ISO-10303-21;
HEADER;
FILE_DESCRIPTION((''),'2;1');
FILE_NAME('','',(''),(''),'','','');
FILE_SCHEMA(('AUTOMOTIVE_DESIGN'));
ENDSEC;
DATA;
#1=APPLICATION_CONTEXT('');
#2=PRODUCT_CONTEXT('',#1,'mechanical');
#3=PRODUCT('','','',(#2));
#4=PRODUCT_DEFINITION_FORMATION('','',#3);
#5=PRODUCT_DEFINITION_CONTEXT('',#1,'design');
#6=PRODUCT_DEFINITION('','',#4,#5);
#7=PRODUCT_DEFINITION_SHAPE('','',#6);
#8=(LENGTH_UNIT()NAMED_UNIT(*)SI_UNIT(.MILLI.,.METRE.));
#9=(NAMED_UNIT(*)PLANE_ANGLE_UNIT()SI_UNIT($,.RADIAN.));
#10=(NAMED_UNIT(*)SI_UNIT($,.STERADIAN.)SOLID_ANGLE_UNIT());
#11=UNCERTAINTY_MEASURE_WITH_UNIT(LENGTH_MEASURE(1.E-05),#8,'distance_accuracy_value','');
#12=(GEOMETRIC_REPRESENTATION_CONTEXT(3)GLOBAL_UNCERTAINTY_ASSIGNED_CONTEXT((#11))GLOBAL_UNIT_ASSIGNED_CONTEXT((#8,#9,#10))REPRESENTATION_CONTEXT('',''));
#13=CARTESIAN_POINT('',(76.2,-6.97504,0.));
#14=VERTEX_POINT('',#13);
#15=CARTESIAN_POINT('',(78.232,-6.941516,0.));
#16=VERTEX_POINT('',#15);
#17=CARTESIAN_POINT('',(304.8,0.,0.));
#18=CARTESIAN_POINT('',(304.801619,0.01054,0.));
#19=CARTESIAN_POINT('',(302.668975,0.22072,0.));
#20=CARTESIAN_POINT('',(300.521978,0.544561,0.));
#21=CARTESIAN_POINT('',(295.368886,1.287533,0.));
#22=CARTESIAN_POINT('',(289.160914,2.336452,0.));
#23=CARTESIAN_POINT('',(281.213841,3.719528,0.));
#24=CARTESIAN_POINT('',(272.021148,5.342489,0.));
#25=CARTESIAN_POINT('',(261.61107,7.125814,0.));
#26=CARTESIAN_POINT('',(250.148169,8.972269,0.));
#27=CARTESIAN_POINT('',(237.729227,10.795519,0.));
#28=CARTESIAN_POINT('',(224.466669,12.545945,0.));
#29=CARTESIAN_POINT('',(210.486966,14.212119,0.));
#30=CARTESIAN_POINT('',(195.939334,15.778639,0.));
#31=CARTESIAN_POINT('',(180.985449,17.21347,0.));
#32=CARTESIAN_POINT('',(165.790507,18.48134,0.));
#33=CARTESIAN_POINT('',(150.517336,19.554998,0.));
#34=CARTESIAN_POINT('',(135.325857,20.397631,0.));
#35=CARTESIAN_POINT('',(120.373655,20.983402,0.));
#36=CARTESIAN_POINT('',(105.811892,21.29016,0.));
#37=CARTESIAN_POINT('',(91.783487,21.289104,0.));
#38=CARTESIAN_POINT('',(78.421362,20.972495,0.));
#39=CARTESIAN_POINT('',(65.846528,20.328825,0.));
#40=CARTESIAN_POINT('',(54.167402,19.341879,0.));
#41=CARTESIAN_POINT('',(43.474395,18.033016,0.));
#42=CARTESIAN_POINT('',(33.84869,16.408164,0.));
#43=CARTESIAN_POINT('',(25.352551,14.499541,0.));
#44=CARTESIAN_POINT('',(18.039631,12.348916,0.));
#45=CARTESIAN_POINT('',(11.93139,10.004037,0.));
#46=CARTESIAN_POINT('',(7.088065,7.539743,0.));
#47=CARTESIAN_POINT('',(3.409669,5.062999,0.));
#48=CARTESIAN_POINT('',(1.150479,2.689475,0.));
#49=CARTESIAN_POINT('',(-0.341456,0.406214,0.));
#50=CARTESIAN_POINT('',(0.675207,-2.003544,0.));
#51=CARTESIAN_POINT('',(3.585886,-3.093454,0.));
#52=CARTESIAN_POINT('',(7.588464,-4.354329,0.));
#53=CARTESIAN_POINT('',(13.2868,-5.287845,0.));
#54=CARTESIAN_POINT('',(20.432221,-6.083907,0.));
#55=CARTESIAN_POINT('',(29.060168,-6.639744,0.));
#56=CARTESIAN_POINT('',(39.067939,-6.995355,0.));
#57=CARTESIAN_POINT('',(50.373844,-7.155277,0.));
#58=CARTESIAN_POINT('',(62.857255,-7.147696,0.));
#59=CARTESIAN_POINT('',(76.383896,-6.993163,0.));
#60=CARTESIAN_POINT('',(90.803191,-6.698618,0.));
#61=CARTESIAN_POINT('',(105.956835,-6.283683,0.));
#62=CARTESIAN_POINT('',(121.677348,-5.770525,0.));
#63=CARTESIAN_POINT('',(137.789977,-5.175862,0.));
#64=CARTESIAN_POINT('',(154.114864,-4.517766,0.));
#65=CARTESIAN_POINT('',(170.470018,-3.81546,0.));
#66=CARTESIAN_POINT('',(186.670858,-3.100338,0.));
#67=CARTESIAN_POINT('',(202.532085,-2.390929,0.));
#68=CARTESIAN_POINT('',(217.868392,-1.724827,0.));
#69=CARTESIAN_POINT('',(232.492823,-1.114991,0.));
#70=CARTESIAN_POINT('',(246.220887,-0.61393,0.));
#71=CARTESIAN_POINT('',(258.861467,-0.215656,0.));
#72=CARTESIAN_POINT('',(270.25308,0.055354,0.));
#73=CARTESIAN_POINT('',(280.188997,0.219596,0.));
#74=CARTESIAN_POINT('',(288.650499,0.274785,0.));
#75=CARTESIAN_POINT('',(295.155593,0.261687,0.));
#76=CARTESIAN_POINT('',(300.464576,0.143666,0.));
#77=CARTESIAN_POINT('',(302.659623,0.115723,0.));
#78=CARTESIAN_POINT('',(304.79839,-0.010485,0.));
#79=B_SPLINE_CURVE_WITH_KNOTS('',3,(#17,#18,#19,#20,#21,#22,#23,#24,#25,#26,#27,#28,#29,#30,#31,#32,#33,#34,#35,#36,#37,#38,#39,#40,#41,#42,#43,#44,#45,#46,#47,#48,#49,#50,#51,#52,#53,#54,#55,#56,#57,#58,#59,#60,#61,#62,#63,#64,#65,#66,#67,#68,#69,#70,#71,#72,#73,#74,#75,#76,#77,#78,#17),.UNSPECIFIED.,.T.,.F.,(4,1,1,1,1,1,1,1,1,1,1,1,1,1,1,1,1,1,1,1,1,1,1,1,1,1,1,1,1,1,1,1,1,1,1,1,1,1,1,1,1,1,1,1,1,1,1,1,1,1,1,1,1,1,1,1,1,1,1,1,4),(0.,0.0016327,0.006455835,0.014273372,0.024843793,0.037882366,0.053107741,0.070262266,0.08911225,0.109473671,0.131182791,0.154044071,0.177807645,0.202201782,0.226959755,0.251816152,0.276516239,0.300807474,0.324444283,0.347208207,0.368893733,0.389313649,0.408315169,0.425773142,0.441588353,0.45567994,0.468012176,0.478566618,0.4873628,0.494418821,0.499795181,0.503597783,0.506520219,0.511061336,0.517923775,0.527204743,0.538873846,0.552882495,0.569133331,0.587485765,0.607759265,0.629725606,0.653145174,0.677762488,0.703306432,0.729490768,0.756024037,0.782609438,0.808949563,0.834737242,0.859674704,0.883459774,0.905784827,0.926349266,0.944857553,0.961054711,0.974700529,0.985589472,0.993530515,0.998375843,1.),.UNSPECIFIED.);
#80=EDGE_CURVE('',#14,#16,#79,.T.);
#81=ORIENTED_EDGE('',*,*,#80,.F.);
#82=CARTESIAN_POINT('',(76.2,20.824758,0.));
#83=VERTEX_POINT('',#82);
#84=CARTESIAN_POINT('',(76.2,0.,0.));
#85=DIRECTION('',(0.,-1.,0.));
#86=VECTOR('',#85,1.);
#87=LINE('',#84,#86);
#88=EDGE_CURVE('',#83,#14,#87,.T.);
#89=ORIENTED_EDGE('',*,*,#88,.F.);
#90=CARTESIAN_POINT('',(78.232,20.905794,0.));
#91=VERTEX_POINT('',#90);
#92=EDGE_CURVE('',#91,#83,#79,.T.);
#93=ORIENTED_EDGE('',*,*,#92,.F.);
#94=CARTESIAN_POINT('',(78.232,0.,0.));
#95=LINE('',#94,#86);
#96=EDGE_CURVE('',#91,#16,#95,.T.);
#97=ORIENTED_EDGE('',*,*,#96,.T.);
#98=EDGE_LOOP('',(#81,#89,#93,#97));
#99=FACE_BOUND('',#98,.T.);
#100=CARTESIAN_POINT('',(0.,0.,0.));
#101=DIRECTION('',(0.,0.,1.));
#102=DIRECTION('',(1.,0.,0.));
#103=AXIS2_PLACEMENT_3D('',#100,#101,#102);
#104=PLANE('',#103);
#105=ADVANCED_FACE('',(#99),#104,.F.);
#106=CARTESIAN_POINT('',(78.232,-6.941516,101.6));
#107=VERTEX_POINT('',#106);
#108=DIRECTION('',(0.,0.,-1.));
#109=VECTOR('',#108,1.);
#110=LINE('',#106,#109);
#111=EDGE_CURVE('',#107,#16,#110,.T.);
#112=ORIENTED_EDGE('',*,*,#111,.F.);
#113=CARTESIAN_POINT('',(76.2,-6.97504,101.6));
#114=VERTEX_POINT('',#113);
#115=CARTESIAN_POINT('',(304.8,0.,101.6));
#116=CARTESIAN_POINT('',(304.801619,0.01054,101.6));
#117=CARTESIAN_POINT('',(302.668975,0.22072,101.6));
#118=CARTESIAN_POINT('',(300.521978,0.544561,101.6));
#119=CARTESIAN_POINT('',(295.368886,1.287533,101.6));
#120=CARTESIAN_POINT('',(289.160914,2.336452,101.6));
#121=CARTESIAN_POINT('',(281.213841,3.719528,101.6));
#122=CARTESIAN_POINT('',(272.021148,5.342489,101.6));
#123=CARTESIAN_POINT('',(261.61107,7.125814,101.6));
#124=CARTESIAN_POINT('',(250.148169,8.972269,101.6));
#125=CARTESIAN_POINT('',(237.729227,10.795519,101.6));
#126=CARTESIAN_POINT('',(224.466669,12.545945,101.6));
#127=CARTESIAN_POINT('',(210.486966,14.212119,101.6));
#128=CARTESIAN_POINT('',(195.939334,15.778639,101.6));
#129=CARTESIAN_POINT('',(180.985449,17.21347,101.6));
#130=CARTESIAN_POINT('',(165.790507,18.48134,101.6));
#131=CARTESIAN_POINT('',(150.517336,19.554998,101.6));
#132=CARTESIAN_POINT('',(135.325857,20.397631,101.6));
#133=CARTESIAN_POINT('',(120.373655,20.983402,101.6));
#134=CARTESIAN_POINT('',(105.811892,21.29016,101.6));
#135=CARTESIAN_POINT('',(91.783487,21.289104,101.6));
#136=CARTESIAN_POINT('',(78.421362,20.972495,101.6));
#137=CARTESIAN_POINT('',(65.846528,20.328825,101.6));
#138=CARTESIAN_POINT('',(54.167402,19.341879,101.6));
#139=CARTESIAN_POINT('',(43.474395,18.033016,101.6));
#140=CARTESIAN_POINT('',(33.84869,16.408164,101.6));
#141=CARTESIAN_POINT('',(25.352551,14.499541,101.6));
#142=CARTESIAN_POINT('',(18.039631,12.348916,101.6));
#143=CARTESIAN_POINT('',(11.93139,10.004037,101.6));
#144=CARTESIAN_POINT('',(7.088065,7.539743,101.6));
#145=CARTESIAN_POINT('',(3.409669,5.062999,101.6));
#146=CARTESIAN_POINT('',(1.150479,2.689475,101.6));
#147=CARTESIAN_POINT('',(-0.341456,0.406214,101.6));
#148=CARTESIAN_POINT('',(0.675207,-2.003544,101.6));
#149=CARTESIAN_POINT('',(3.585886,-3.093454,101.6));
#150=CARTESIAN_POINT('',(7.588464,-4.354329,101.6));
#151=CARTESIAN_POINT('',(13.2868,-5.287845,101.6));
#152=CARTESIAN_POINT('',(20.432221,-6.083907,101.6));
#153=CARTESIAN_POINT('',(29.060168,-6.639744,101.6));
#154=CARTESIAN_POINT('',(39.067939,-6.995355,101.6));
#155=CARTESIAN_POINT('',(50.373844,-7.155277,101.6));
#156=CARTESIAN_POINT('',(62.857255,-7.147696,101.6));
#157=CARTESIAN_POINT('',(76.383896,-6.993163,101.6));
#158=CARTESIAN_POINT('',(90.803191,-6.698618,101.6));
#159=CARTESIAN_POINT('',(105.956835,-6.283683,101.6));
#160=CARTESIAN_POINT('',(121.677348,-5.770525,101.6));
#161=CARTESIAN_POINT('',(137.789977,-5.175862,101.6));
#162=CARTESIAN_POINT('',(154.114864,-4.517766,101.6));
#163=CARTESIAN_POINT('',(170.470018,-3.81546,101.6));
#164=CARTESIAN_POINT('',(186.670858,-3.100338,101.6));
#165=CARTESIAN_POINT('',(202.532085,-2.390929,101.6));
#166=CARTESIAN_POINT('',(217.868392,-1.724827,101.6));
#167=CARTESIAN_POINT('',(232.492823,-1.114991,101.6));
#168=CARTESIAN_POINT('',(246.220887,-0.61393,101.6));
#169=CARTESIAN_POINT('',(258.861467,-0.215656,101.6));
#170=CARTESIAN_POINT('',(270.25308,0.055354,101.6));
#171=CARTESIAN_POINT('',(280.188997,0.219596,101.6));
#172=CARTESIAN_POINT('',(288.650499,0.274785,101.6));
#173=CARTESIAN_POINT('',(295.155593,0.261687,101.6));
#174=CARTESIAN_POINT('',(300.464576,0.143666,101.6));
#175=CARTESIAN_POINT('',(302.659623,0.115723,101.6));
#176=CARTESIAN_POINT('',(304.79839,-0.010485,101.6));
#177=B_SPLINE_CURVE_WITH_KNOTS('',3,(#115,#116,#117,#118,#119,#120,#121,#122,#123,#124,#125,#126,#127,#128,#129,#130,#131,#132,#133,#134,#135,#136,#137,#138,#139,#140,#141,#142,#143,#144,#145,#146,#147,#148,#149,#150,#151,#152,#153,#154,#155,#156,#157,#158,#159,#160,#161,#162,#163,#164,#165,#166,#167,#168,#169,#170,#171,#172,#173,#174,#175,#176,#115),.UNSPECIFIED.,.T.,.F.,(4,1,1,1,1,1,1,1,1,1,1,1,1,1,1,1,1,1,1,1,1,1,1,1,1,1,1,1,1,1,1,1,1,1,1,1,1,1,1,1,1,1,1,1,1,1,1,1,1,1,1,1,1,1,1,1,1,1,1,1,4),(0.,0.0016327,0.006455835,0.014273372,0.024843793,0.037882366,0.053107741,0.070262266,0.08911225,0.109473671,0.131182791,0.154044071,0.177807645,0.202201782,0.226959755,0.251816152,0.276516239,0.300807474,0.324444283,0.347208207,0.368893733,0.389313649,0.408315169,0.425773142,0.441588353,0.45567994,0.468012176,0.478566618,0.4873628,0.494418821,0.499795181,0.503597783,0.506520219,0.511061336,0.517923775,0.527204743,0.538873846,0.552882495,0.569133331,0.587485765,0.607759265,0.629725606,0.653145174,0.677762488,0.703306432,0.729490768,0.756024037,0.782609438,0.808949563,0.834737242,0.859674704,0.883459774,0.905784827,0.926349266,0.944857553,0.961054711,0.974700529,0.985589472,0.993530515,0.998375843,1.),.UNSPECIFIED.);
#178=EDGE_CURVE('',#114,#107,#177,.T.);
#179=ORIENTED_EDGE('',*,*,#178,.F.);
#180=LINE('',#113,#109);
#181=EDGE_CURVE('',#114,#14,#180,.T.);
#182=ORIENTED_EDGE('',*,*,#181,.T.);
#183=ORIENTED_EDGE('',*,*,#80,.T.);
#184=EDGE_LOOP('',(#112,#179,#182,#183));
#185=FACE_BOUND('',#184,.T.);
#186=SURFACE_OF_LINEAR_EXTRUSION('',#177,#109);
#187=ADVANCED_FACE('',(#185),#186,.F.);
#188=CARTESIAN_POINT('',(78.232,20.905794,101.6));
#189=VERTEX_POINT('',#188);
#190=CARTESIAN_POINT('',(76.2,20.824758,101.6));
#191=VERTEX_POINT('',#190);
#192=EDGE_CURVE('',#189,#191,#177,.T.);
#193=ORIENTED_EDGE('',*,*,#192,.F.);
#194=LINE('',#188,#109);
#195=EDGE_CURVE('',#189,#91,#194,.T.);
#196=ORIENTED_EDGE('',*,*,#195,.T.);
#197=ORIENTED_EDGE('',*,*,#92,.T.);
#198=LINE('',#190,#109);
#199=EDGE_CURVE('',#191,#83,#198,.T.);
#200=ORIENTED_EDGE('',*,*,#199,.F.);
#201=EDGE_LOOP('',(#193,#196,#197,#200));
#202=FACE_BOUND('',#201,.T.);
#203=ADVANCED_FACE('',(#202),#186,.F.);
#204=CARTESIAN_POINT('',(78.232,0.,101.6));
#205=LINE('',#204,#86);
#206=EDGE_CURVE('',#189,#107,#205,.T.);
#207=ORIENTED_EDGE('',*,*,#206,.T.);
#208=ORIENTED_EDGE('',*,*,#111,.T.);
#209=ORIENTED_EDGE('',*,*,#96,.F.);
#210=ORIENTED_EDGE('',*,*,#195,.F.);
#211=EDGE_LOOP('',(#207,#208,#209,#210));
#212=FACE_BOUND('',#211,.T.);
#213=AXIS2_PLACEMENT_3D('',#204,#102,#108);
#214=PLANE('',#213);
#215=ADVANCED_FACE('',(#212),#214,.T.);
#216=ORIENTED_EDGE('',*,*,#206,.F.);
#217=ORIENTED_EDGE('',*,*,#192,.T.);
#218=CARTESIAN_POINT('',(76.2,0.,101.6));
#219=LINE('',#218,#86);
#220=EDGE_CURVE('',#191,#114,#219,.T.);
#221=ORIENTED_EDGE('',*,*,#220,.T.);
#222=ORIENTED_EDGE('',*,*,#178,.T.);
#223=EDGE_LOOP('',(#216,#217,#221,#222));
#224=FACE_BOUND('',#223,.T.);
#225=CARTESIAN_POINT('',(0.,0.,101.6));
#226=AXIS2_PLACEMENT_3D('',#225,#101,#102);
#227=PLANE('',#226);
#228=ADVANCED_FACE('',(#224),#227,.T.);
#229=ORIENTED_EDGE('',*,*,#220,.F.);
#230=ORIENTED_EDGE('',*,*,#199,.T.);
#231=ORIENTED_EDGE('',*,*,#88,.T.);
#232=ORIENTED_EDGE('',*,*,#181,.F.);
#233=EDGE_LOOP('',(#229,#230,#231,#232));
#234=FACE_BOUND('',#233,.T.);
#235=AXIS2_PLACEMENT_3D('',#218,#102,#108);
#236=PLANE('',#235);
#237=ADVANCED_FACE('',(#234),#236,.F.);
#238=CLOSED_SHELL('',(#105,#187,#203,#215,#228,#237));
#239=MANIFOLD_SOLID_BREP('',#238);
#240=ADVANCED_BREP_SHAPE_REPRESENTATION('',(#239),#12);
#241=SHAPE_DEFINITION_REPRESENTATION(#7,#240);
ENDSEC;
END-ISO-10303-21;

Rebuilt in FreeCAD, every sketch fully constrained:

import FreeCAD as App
import Part
import Sketcher
Q = App.Units.Quantity

doc = App.newDocument("Part")
body = doc.addObject("PartDesign::Body", "Body")

sketch1 = body.newObject("Sketcher::SketchObject", "Sketch")
sketch1.AttachmentSupport = (doc.getObject("XY_Plane"), [""])
sketch1.MapMode = "FlatFace"
sketch1.addGeometry([
    Part.BSplineCurve([App.Vector(78.232, 20.905794, 0), App.Vector(78.208971, 20.904926, 0), App.Vector(77.531584, 20.879338, 0), App.Vector(76.854249, 20.852297, 0), App.Vector(76.2, 20.824758, 0)], [4, 1, 4], [0.368781876, 0.368893733, 0.372072045], False, 3, [1, 1, 1, 1, 1], False),
    Part.LineSegment(App.Vector(76.2, 20.824758, 0), App.Vector(76.2, -6.97504, 0)),
    Part.BSplineCurve([App.Vector(76.2, -6.97504, 0), App.Vector(76.877341, -6.9643, 0), App.Vector(77.554674, -6.95312, 0), App.Vector(78.232, -6.941516, 0)], [4, 4], [0.629913027, 0.633201144], False, 3, [1, 1, 1, 1], False),
    Part.LineSegment(App.Vector(78.232, -6.941516, 0), App.Vector(78.232, 20.905794, 0)),
], False)
sketch1.addConstraint([
    Sketcher.Constraint("Block", 0),
    Sketcher.Constraint("Block", 2),
    Sketcher.Constraint("Coincident", 0, 2, 1, 1),
    Sketcher.Constraint("Coincident", 1, 2, 2, 1),
    Sketcher.Constraint("Coincident", 2, 2, 3, 1),
    Sketcher.Constraint("Coincident", 3, 2, 0, 1),
])
pad1 = body.newObject("PartDesign::Pad", "Pad")
pad1.Profile = sketch1
pad1.Length = Q("4 in")

doc.recompute()
